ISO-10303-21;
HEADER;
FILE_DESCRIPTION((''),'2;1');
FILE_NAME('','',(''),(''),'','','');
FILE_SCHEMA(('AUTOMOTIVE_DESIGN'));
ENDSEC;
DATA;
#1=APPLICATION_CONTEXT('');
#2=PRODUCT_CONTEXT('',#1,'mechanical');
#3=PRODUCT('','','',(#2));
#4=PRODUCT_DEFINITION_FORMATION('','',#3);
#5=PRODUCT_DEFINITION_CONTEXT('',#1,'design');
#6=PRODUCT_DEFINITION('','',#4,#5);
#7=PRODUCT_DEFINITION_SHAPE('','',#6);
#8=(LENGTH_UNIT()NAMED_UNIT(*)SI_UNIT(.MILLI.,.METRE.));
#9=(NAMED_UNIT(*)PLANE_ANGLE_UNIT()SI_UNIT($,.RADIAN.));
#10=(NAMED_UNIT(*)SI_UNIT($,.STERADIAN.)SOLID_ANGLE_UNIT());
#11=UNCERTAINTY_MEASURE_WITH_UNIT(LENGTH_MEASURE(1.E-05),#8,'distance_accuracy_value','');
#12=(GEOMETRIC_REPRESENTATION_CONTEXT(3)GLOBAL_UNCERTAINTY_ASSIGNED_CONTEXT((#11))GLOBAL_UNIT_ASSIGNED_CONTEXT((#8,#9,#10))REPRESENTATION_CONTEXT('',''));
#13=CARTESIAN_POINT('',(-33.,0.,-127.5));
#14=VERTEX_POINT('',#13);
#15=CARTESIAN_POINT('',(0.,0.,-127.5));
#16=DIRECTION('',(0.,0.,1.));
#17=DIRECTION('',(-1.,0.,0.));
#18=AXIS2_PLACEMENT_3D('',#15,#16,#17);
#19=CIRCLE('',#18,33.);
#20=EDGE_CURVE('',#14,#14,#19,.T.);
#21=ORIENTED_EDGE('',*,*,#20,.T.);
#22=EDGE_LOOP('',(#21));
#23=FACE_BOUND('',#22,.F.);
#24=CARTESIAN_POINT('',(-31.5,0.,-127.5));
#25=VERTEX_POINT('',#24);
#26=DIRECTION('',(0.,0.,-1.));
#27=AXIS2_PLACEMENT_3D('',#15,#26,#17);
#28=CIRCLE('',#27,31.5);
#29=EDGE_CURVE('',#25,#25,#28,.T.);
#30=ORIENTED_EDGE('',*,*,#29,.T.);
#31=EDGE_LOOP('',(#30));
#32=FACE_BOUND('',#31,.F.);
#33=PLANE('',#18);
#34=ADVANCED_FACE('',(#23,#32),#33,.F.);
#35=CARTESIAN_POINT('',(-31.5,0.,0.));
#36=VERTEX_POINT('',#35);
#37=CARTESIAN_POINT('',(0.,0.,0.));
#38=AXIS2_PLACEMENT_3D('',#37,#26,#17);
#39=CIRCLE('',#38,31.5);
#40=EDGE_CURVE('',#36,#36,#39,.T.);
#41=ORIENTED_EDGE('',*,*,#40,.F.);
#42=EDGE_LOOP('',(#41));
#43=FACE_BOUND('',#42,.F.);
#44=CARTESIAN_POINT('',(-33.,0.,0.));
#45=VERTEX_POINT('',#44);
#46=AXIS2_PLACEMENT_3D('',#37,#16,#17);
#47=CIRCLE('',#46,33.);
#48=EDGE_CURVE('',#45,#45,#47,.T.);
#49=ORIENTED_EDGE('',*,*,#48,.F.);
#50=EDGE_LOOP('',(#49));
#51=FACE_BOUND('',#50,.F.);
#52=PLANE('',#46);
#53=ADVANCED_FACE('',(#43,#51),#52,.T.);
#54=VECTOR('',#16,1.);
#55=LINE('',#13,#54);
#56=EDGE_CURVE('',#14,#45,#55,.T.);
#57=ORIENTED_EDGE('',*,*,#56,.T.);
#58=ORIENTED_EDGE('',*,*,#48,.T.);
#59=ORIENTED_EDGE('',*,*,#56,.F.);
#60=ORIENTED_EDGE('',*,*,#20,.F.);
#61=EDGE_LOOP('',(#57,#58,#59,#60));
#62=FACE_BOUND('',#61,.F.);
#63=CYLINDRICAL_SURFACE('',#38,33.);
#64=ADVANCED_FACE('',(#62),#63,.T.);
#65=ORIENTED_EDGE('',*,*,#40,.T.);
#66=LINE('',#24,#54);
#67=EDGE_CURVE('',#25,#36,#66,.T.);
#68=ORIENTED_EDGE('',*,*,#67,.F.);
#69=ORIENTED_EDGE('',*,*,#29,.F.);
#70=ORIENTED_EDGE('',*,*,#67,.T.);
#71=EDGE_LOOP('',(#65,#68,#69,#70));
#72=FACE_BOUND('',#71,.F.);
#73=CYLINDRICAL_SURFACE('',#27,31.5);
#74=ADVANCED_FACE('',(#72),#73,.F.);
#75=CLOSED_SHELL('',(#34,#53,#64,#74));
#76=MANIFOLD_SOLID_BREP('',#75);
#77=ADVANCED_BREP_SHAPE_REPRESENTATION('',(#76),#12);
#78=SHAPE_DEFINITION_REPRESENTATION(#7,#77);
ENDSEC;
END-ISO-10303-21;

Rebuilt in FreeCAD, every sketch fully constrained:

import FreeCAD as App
import Part
import Sketcher
Q = App.Units.Quantity

doc = App.newDocument("Part")
body = doc.addObject("PartDesign::Body", "Body")

# Sketch on XZ plane
sketch1 = body.newObject("Sketcher::SketchObject", "Sketch")
sketch1.AttachmentSupport = (doc.getObject("XZ_Plane"), [""])
sketch1.MapMode = "FlatFace"
sketch1.addGeometry(Part.LineSegment(App.Vector(-33, 0, 0), App.Vector(0, 0, 0)), False)
sketch1.addGeometry(Part.LineSegment(App.Vector(0, 0, 0), App.Vector(0, -127.5, 0)), False)
sketch1.addGeometry(Part.LineSegment(App.Vector(0, -127.5, 0), App.Vector(-33, -127.5, 0)), False)
sketch1.addGeometry(Part.LineSegment(App.Vector(-33, -127.5, 0), App.Vector(-33, 0, 0)), False)
sketch1.addConstraint(Sketcher.Constraint("Coincident", 0, 2, 1, 1))
sketch1.addConstraint(Sketcher.Constraint("Coincident", 1, 2, 2, 1))
sketch1.addConstraint(Sketcher.Constraint("Coincident", 2, 2, 3, 1))
sketch1.addConstraint(Sketcher.Constraint("Coincident", 3, 2, 0, 1))
sketch1.addConstraint(Sketcher.Constraint("Horizontal", 0))
sketch1.addConstraint(Sketcher.Constraint("Vertical", 1))
sketch1.addConstraint(Sketcher.Constraint("Horizontal", 2))
sketch1.addConstraint(Sketcher.Constraint("Vertical", 3))
sketch1.addConstraint(Sketcher.Constraint("Coincident", 0, 2, -1, 1))
sketch1.addConstraint(Sketcher.Constraint("DistanceY", 1, 2, 1, 1, Q("127.5 mm")))
sketch1.addConstraint(Sketcher.Constraint("DistanceX", 0, 1, 0, 2, Q("33 mm")))
revolution = body.newObject("PartDesign::Revolution", "Revolution")
revolution.Profile = sketch1
revolution.ReferenceAxis = (sketch1, ["V_Axis"])
revolution.Angle = 360

# Sketch on XY plane
sketch2 = body.newObject("Sketcher::SketchObject", "Sketch001")
sketch2.AttachmentSupport = (doc.getObject("XY_Plane"), [""])
sketch2.MapMode = "FlatFace"
sketch2.AttachmentOffset = App.Placement(App.Vector(0, 0, -127.5), App.Rotation())
sketch2.addGeometry(Part.Circle(App.Vector(0, 0, 0), App.Vector(0, 0, 1), 31.5), False)
sketch2.addConstraint(Sketcher.Constraint("Coincident", 0, 3, -1, 1))
sketch2.addConstraint(Sketcher.Constraint("Diameter", 0, Q("63 mm")))
pocket1 = body.newObject("PartDesign::Pocket", "Pocket")
pocket1.Profile = sketch2
pocket1.Length = 127.5
pocket1.Reversed = True

doc.recompute()
